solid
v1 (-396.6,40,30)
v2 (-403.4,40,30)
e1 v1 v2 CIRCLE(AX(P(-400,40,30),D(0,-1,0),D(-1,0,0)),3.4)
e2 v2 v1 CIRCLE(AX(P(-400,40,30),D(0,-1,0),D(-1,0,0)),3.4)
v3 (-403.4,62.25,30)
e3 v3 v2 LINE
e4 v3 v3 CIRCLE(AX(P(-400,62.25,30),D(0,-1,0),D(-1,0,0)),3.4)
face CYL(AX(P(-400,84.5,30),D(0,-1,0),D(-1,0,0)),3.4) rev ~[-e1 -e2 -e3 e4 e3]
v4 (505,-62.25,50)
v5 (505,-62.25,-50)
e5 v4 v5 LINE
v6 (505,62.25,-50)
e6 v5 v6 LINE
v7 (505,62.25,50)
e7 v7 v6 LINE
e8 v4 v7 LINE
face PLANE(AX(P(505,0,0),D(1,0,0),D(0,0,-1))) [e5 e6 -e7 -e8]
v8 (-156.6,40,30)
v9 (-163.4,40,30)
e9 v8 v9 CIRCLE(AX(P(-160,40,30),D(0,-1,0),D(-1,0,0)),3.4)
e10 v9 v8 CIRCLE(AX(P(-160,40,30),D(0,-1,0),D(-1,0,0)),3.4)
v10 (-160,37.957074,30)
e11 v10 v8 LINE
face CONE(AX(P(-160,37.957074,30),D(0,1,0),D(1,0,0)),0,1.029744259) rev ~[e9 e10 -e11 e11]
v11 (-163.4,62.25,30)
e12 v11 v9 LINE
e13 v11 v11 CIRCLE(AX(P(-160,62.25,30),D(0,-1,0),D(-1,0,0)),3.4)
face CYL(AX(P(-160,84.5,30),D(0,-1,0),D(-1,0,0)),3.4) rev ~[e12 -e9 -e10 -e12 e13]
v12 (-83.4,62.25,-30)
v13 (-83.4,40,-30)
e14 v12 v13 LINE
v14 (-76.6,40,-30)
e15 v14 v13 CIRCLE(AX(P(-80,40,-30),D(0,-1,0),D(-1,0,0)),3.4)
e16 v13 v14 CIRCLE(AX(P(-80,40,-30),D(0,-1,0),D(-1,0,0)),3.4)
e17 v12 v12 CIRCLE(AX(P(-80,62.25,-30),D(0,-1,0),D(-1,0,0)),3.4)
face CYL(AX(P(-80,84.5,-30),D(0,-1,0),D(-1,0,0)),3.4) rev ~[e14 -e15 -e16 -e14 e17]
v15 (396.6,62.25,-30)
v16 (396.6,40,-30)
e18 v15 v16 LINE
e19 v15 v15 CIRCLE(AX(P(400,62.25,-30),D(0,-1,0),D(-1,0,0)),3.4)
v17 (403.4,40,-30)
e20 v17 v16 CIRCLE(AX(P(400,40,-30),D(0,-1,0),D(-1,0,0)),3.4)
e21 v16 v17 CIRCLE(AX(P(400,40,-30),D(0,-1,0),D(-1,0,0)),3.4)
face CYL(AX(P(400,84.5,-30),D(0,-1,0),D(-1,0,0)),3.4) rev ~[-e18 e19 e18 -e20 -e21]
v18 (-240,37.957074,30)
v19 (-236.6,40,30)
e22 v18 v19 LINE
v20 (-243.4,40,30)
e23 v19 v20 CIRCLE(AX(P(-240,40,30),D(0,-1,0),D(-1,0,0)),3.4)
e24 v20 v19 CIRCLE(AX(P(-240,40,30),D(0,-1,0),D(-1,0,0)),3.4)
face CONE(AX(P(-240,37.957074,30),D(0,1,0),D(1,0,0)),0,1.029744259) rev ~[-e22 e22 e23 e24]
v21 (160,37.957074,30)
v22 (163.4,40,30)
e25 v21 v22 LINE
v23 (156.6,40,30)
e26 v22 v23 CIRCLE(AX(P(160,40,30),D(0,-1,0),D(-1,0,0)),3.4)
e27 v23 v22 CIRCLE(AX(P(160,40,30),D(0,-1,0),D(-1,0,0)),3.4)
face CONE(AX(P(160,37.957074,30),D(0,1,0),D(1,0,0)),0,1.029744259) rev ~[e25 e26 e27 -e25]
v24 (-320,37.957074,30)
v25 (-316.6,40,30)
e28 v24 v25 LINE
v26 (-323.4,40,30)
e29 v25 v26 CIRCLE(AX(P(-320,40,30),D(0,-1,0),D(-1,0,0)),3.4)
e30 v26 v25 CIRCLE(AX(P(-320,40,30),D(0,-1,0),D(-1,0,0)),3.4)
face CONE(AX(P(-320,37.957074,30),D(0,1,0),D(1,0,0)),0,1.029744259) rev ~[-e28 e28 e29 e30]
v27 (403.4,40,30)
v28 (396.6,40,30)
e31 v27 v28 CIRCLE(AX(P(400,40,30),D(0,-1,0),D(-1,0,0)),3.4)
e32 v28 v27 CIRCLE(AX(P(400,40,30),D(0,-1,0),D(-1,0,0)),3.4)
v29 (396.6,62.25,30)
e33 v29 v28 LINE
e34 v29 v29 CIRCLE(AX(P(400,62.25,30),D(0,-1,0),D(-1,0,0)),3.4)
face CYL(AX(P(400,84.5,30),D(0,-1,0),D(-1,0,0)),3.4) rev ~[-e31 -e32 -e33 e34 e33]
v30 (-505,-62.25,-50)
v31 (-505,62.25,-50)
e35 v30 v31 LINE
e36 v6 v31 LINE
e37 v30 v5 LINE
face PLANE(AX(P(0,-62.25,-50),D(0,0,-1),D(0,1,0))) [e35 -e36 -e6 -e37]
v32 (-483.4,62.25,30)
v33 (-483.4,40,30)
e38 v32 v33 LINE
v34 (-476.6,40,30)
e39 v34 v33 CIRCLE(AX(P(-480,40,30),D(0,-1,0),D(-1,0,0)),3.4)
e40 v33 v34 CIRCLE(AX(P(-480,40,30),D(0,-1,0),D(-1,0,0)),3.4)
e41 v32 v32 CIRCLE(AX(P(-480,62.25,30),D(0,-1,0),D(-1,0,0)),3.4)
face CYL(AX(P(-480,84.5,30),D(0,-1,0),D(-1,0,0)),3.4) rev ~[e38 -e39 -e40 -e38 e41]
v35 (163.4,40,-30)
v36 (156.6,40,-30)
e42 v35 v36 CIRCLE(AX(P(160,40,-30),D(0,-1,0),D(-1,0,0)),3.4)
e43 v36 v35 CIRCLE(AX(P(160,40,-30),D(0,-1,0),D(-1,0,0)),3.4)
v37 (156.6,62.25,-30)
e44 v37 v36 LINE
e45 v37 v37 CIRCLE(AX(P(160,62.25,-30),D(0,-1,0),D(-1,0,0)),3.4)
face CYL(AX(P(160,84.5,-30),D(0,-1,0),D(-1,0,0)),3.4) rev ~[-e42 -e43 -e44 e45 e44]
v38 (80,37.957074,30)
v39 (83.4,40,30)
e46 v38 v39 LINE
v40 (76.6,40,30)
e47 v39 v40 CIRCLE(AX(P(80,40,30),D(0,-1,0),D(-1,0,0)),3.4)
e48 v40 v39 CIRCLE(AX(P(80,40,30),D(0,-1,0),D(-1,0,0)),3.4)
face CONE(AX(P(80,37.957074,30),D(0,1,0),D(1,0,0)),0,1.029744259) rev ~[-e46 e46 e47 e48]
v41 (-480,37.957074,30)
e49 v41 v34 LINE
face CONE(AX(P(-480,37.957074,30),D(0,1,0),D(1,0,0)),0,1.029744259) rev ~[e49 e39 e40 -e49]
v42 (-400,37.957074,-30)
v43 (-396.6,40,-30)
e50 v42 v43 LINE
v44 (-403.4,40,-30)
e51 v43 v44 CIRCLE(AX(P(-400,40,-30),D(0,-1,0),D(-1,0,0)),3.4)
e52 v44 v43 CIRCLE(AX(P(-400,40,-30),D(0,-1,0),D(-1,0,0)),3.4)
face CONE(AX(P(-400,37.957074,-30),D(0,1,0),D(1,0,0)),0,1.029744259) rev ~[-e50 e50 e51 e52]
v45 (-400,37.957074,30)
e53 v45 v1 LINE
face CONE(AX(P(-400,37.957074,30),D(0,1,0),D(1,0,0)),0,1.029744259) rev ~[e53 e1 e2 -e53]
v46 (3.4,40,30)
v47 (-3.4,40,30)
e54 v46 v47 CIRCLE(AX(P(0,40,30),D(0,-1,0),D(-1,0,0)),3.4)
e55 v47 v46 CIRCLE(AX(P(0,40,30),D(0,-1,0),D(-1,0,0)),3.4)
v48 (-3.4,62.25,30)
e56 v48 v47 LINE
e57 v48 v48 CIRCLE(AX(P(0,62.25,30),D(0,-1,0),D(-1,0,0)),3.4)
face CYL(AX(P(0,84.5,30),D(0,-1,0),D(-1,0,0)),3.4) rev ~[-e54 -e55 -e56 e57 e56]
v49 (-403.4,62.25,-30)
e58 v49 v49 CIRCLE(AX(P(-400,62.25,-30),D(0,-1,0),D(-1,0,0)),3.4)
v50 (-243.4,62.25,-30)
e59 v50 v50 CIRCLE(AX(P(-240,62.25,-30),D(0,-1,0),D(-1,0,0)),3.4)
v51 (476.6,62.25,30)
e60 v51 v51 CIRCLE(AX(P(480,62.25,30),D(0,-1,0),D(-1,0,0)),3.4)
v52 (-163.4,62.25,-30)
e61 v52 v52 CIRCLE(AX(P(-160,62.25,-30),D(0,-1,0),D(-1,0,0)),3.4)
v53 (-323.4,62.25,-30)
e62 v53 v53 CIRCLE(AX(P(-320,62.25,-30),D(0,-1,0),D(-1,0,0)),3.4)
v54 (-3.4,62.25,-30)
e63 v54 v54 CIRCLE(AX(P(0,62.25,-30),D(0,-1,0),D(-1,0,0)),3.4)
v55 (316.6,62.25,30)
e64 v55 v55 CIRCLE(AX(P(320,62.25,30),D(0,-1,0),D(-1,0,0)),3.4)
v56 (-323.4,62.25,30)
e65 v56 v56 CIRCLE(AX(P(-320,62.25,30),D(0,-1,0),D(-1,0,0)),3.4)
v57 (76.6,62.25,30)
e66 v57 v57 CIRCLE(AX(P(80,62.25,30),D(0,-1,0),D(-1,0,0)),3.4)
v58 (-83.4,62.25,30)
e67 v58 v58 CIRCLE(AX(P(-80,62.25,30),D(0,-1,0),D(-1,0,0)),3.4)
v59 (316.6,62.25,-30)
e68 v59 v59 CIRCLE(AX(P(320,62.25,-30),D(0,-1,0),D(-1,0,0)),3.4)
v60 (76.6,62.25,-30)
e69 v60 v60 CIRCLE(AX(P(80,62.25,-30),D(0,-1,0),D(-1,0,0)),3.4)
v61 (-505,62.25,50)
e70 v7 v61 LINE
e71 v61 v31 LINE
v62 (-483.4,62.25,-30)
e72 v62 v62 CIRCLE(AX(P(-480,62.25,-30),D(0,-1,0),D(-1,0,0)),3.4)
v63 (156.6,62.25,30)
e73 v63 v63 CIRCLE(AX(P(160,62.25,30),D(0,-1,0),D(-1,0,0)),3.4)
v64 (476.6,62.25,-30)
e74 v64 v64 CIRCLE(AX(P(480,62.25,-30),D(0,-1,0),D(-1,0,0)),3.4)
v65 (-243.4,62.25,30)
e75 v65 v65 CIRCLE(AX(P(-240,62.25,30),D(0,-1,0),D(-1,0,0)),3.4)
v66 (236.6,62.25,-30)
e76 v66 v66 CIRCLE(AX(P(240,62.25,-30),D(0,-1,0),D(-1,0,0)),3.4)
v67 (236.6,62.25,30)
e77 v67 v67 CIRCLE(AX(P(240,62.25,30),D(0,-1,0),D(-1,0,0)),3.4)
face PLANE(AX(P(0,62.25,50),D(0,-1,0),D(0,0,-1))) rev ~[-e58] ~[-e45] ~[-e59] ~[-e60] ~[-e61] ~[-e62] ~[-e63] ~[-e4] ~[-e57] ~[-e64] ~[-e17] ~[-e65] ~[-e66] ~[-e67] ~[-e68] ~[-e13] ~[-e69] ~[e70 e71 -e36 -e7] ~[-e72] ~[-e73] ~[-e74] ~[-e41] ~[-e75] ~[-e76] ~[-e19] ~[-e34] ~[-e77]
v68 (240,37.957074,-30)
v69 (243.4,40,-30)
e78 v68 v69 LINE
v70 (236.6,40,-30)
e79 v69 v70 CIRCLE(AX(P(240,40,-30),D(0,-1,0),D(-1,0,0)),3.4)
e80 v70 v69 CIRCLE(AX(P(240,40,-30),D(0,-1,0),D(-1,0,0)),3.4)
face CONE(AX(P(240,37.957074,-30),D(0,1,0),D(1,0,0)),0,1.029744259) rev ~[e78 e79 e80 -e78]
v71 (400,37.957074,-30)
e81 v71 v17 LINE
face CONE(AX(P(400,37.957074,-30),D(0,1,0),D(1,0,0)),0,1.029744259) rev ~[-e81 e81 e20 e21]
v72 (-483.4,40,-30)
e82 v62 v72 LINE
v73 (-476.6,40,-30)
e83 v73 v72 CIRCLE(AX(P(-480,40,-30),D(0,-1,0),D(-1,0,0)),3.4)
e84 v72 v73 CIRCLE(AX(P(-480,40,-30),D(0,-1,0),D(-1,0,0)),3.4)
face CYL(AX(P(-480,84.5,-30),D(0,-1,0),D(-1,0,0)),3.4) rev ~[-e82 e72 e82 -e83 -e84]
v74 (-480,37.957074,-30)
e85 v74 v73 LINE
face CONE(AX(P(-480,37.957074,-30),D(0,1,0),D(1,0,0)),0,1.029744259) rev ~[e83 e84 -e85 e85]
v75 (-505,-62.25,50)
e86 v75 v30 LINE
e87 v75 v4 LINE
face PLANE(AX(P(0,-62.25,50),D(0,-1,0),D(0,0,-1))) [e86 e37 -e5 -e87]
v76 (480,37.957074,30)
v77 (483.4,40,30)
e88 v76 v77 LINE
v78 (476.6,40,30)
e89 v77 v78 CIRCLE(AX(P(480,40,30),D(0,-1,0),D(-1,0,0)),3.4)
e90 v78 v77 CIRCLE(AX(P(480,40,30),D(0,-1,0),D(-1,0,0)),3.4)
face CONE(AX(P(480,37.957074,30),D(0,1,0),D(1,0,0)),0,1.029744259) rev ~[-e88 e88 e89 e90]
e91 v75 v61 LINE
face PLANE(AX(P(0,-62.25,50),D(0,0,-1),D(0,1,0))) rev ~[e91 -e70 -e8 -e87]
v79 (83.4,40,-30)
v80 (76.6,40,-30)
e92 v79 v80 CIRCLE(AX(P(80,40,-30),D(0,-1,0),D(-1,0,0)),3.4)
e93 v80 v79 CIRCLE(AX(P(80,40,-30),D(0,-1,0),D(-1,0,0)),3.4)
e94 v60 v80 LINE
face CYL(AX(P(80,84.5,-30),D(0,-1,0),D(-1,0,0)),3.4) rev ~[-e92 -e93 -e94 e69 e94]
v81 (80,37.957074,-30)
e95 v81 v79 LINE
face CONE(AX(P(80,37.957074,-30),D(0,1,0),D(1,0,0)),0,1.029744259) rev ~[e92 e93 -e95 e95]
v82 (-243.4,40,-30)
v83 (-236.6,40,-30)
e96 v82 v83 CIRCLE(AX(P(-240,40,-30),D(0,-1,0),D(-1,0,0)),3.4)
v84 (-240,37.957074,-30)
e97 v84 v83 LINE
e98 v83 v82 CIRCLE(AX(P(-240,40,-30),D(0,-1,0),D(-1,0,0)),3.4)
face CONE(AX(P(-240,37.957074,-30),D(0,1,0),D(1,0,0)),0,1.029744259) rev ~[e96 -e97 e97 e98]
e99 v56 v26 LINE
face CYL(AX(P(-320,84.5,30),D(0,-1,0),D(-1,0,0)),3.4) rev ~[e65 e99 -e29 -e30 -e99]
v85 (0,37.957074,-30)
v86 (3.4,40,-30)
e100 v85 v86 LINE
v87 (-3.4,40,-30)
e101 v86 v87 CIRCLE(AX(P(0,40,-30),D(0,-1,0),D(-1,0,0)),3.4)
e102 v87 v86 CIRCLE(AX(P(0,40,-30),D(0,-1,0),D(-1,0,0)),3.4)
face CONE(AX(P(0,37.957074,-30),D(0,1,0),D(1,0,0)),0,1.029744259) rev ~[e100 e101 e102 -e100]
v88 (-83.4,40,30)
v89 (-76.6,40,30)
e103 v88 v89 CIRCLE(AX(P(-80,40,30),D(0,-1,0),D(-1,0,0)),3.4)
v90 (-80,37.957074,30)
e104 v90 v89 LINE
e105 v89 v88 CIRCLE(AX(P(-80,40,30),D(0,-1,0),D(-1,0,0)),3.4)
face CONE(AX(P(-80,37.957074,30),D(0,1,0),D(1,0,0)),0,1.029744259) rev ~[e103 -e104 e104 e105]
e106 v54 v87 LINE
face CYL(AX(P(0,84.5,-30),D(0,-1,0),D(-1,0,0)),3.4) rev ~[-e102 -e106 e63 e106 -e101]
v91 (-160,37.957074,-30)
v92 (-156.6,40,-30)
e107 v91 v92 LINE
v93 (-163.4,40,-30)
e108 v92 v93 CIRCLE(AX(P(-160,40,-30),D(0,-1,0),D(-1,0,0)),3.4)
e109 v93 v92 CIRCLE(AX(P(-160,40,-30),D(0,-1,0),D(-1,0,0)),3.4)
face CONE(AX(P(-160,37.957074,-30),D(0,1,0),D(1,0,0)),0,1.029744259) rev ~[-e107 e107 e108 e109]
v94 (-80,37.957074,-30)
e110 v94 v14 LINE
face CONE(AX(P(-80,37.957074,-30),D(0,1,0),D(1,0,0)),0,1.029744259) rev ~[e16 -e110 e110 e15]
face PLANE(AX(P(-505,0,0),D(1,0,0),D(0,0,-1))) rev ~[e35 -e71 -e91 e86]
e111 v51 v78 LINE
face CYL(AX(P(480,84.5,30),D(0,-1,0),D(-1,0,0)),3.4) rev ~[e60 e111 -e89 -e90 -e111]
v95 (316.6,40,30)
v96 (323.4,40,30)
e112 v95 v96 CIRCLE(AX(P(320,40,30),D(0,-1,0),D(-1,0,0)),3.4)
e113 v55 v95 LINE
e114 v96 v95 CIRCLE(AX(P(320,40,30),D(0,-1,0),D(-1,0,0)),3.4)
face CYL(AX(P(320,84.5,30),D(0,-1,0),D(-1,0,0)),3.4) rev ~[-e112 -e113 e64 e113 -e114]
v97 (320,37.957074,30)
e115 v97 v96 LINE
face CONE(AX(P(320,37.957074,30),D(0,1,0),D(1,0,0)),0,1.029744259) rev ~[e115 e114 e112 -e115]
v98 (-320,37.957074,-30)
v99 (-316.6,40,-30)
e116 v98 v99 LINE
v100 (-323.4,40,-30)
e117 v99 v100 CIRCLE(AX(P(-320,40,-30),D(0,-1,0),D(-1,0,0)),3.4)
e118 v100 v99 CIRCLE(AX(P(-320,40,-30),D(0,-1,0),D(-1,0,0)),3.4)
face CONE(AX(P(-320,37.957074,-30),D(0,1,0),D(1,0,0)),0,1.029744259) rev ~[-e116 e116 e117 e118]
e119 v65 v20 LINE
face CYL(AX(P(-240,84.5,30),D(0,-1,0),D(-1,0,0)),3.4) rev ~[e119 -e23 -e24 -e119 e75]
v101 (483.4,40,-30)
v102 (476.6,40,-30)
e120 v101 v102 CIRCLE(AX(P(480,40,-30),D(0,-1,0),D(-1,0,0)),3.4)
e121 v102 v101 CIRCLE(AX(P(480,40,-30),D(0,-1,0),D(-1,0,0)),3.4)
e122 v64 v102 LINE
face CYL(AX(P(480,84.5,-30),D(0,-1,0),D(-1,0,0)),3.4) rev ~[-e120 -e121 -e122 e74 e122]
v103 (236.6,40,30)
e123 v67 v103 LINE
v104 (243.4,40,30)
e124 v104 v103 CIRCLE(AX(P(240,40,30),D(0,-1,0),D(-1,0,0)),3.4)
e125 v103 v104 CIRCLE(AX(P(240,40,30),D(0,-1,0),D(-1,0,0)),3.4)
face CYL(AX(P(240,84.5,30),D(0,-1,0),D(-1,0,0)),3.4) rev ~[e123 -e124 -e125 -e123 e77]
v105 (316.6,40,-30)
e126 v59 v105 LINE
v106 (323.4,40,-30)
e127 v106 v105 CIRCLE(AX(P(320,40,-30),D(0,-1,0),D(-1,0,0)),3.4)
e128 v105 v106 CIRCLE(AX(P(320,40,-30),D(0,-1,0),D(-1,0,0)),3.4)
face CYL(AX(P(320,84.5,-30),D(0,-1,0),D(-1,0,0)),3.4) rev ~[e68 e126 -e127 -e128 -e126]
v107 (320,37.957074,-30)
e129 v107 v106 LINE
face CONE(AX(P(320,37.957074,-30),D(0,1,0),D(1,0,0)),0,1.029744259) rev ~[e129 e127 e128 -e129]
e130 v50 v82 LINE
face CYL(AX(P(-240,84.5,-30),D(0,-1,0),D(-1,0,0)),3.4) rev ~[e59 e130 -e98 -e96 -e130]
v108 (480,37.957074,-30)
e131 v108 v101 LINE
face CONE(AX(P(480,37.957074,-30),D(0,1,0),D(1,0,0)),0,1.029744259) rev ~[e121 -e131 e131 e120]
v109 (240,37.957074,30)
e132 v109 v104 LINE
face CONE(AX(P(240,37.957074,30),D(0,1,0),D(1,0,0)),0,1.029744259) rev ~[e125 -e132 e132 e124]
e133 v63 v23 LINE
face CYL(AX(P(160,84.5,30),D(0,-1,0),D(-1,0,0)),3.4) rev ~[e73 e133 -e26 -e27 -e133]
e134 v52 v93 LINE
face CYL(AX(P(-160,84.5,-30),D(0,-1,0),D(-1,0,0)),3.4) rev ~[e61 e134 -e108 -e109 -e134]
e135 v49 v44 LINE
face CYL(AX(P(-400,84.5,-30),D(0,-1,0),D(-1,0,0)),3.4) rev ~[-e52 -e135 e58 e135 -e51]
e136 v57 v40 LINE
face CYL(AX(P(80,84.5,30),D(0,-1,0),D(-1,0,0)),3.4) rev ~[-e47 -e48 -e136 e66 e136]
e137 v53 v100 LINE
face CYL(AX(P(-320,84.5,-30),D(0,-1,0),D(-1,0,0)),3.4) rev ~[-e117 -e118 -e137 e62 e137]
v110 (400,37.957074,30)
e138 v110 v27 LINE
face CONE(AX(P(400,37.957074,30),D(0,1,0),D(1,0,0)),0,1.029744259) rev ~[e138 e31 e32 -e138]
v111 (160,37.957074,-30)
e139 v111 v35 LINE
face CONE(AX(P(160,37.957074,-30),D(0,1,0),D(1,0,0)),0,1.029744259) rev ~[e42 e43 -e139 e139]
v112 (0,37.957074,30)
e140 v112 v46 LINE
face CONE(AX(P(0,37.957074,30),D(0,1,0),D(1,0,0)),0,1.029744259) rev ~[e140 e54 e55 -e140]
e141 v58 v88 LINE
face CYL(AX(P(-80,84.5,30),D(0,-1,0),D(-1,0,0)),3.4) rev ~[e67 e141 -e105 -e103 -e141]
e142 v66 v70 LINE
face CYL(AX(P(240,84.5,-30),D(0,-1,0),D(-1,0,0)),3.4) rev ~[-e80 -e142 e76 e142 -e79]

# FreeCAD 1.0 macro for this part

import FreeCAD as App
import Part
import Sketcher

V = App.Vector

doc = App.newDocument("Part")
body = doc.addObject("PartDesign::Body", "Body")

# Sketch on YZ plane
sketch1 = doc.addObject("Sketcher::SketchObject", "Sketch")
body.addObject(sketch1)
sketch1.AttachmentSupport = (doc.YZ_Plane, [""])
sketch1.MapMode = "FlatFace"
sketch1.addGeometry([
    Part.LineSegment(V(62, 50, 0), V(-62, 50, 0)),
    Part.LineSegment(V(-62, 50, 0), V(-62, -50, 0)),
    Part.LineSegment(V(-62, -50, 0), V(62, -50, 0)),
    Part.LineSegment(V(62, -50, 0), V(62, 50, 0)),
], False)
sketch1.addConstraint([
    Sketcher.Constraint("Coincident", 0, 2, 1, 1),
    Sketcher.Constraint("Coincident", 1, 2, 2, 1),
    Sketcher.Constraint("Coincident", 2, 2, 3, 1),
    Sketcher.Constraint("Coincident", 3, 2, 0, 1),
    Sketcher.Constraint("Horizontal", 0),
    Sketcher.Constraint("Vertical", 1),
    Sketcher.Constraint("Horizontal", 2),
    Sketcher.Constraint("Vertical", 3),
    Sketcher.Constraint("Symmetric", 0, 2, 2, 2, -1, 1),
    Sketcher.Constraint("DistanceY", 1, 2, 1, 1, 100.0),
    Sketcher.Constraint("DistanceX", 0, 2, 0, 1, 124.5),
])
pad1 = doc.addObject("PartDesign::Pad", "Pad")
body.addObject(pad1)
pad1.Profile = sketch1
pad1.Length = 1010
pad1.Midplane = True

# Sketch on XZ plane
sketch2 = doc.addObject("Sketcher::SketchObject", "Sketch001")
body.addObject(sketch2)
sketch2.AttachmentSupport = (doc.XZ_Plane, [""])
sketch2.MapMode = "FlatFace"
sketch2.AttachmentOffset = App.Placement(V(0, 0, -62.25), App.Rotation())
sketch2.addGeometry([
    Part.Circle(V(480, -30, 0), V(0, 0, 1), 3.4),  # 0
    Part.Circle(V(480, 30, 0), V(0, 0, 1), 3.4),  # 1
    Part.Circle(V(400, -30, 0), V(0, 0, 1), 3.4),  # 2
    Part.Circle(V(400, 30, 0), V(0, 0, 1), 3.4),  # 3
    Part.Circle(V(320, -30, 0), V(0, 0, 1), 3.4),  # 4
    Part.Circle(V(320, 30, 0), V(0, 0, 1), 3.4),  # 5
    Part.Circle(V(240, 30, 0), V(0, 0, 1), 3.4),  # 6
    Part.Circle(V(240, -30, 0), V(0, 0, 1), 3.4),  # 7
    Part.Circle(V(160, -30, 0), V(0, 0, 1), 3.4),  # 8
    Part.Circle(V(160, 30, 0), V(0, 0, 1), 3.4),  # 9
    Part.Circle(V(80, -30, 0), V(0, 0, 1), 3.4),  # 10
    Part.Circle(V(80, 30, 0), V(0, 0, 1), 3.4),  # 11
    Part.Circle(V(0, 30, 0), V(0, 0, 1), 3.4),  # 12
    Part.Circle(V(0, -30, 0), V(0, 0, 1), 3.4),  # 13
    Part.Circle(V(-80, 30, 0), V(0, 0, 1), 3.4),  # 14
    Part.Circle(V(-80, -30, 0), V(0, 0, 1), 3.4),  # 15
    Part.Circle(V(-160, 30, 0), V(0, 0, 1), 3.4),  # 16
    Part.Circle(V(-160, -30, 0), V(0, 0, 1), 3.4),  # 17
    Part.Circle(V(-240, 30, 0), V(0, 0, 1), 3.4),  # 18
    Part.Circle(V(-240, -30, 0), V(0, 0, 1), 3.4),  # 19
    Part.Circle(V(-320, 30, 0), V(0, 0, 1), 3.4),  # 20
    Part.Circle(V(-320, -30, 0), V(0, 0, 1), 3.4),  # 21
    Part.Circle(V(-400, 30, 0), V(0, 0, 1), 3.4),  # 22
    Part.Circle(V(-400, -30, 0), V(0, 0, 1), 3.4),  # 23
    Part.Circle(V(-480, -30, 0), V(0, 0, 1), 3.4),  # 24
    Part.Circle(V(-480, 30, 0), V(0, 0, 1), 3.4),  # 25
], False)
sketch2.addConstraint([
    Sketcher.Constraint("Equal", 0, 1),
    Sketcher.Constraint("Equal", 1, 2),
    Sketcher.Constraint("Equal", 2, 3),
    Sketcher.Constraint("Equal", 3, 4),
    Sketcher.Constraint("Equal", 4, 5),
    Sketcher.Constraint("Equal", 5, 6),
    Sketcher.Constraint("Equal", 6, 7),
    Sketcher.Constraint("Equal", 7, 8),
    Sketcher.Constraint("Equal", 8, 9),
    Sketcher.Constraint("Equal", 9, 10),
    Sketcher.Constraint("Equal", 10, 11),
    Sketcher.Constraint("Equal", 11, 12),
    Sketcher.Constraint("Equal", 12, 13),
    Sketcher.Constraint("Equal", 13, 14),
    Sketcher.Constraint("Equal", 14, 15),
    Sketcher.Constraint("Equal", 15, 16),
    Sketcher.Constraint("Equal", 16, 17),
    Sketcher.Constraint("Equal", 17, 18),
    Sketcher.Constraint("Equal", 18, 19),
    Sketcher.Constraint("Equal", 19, 20),
    Sketcher.Constraint("Equal", 20, 21),
    Sketcher.Constraint("Equal", 21, 22),
    Sketcher.Constraint("Equal", 22, 23),
    Sketcher.Constraint("Equal", 23, 24),
    Sketcher.Constraint("Equal", 24, 25),
    Sketcher.Constraint("Symmetric", 12, 3, 13, 3, -1, 1),
    Sketcher.Constraint("Symmetric", 10, 3, 14, 3, -1, 1),
    Sketcher.Constraint("Symmetric", 11, 3, 15, 3, -1, 1),
    Sketcher.Constraint("Symmetric", 8, 3, 16, 3, -1, 1),
    Sketcher.Constraint("Symmetric", 9, 3, 17, 3, -1, 1),
    Sketcher.Constraint("Symmetric", 7, 3, 18, 3, -1, 1),
    Sketcher.Constraint("Symmetric", 6, 3, 19, 3, -1, 1),
    Sketcher.Constraint("Symmetric", 4, 3, 20, 3, -1, 1),
    Sketcher.Constraint("Symmetric", 5, 3, 21, 3, -1, 1),
    Sketcher.Constraint("Symmetric", 2, 3, 22, 3, -1, 1),
    Sketcher.Constraint("Symmetric", 3, 3, 23, 3, -1, 1),
    Sketcher.Constraint("Symmetric", 1, 3, 24, 3, -1, 1),
    Sketcher.Constraint("Symmetric", 0, 3, 25, 3, -1, 1),
    Sketcher.Constraint("Symmetric", 11, 3, 14, 3, -2),
    Sketcher.Constraint("Symmetric", 9, 3, 16, 3, -2),
    Sketcher.Constraint("Symmetric", 6, 3, 18, 3, -2),
    Sketcher.Constraint("Symmetric", 5, 3, 20, 3, -2),
    Sketcher.Constraint("Symmetric", 3, 3, 22, 3, -2),
    Sketcher.Constraint("Symmetric", 0, 3, 24, 3, -2),
    Sketcher.Constraint("PointOnObject", 12, 3, -2),
    Sketcher.Constraint("Horizontal", 0, 3, 2, 3),
    Sketcher.Constraint("Horizontal", 2, 3, 4, 3),
    Sketcher.Constraint("Horizontal", 5, 3, 6, 3),
    Sketcher.Constraint("Horizontal", 7, 3, 8, 3),
    Sketcher.Constraint("Horizontal", 8, 3, 10, 3),
    Sketcher.Constraint("Horizontal", 11, 3, 12, 3),
    Sketcher.Constraint("Diameter", 0, 6.8),
    Sketcher.Constraint("DistanceX", -1, 1, 0, 3, 480.0),
    Sketcher.Constraint("DistanceY", 0, 3, -1, 1, 30.0),
    Sketcher.Constraint("DistanceX", -1, 1, 2, 3, 400.0),
    Sketcher.Constraint("DistanceX", -1, 1, 4, 3, 320.0),
    Sketcher.Constraint("DistanceX", -1, 1, 6, 3, 240.0),
    Sketcher.Constraint("DistanceX", -1, 1, 8, 3, 160.0),
    Sketcher.Constraint("DistanceX", -1, 1, 10, 3, 80.0),
])
doc.recompute()
hole = doc.addObject("PartDesign::Hole", "Hole")
body.addObject(hole)
hole.Profile = sketch2
hole.ThreadType = "None"
hole.Diameter = 6.8
hole.DepthType = "Dimension"
hole.Depth = 22.25
hole.DrillPoint = "Angled"
hole.DrillPointAngle = 118
hole.Reversed = True

doc.recompute()
